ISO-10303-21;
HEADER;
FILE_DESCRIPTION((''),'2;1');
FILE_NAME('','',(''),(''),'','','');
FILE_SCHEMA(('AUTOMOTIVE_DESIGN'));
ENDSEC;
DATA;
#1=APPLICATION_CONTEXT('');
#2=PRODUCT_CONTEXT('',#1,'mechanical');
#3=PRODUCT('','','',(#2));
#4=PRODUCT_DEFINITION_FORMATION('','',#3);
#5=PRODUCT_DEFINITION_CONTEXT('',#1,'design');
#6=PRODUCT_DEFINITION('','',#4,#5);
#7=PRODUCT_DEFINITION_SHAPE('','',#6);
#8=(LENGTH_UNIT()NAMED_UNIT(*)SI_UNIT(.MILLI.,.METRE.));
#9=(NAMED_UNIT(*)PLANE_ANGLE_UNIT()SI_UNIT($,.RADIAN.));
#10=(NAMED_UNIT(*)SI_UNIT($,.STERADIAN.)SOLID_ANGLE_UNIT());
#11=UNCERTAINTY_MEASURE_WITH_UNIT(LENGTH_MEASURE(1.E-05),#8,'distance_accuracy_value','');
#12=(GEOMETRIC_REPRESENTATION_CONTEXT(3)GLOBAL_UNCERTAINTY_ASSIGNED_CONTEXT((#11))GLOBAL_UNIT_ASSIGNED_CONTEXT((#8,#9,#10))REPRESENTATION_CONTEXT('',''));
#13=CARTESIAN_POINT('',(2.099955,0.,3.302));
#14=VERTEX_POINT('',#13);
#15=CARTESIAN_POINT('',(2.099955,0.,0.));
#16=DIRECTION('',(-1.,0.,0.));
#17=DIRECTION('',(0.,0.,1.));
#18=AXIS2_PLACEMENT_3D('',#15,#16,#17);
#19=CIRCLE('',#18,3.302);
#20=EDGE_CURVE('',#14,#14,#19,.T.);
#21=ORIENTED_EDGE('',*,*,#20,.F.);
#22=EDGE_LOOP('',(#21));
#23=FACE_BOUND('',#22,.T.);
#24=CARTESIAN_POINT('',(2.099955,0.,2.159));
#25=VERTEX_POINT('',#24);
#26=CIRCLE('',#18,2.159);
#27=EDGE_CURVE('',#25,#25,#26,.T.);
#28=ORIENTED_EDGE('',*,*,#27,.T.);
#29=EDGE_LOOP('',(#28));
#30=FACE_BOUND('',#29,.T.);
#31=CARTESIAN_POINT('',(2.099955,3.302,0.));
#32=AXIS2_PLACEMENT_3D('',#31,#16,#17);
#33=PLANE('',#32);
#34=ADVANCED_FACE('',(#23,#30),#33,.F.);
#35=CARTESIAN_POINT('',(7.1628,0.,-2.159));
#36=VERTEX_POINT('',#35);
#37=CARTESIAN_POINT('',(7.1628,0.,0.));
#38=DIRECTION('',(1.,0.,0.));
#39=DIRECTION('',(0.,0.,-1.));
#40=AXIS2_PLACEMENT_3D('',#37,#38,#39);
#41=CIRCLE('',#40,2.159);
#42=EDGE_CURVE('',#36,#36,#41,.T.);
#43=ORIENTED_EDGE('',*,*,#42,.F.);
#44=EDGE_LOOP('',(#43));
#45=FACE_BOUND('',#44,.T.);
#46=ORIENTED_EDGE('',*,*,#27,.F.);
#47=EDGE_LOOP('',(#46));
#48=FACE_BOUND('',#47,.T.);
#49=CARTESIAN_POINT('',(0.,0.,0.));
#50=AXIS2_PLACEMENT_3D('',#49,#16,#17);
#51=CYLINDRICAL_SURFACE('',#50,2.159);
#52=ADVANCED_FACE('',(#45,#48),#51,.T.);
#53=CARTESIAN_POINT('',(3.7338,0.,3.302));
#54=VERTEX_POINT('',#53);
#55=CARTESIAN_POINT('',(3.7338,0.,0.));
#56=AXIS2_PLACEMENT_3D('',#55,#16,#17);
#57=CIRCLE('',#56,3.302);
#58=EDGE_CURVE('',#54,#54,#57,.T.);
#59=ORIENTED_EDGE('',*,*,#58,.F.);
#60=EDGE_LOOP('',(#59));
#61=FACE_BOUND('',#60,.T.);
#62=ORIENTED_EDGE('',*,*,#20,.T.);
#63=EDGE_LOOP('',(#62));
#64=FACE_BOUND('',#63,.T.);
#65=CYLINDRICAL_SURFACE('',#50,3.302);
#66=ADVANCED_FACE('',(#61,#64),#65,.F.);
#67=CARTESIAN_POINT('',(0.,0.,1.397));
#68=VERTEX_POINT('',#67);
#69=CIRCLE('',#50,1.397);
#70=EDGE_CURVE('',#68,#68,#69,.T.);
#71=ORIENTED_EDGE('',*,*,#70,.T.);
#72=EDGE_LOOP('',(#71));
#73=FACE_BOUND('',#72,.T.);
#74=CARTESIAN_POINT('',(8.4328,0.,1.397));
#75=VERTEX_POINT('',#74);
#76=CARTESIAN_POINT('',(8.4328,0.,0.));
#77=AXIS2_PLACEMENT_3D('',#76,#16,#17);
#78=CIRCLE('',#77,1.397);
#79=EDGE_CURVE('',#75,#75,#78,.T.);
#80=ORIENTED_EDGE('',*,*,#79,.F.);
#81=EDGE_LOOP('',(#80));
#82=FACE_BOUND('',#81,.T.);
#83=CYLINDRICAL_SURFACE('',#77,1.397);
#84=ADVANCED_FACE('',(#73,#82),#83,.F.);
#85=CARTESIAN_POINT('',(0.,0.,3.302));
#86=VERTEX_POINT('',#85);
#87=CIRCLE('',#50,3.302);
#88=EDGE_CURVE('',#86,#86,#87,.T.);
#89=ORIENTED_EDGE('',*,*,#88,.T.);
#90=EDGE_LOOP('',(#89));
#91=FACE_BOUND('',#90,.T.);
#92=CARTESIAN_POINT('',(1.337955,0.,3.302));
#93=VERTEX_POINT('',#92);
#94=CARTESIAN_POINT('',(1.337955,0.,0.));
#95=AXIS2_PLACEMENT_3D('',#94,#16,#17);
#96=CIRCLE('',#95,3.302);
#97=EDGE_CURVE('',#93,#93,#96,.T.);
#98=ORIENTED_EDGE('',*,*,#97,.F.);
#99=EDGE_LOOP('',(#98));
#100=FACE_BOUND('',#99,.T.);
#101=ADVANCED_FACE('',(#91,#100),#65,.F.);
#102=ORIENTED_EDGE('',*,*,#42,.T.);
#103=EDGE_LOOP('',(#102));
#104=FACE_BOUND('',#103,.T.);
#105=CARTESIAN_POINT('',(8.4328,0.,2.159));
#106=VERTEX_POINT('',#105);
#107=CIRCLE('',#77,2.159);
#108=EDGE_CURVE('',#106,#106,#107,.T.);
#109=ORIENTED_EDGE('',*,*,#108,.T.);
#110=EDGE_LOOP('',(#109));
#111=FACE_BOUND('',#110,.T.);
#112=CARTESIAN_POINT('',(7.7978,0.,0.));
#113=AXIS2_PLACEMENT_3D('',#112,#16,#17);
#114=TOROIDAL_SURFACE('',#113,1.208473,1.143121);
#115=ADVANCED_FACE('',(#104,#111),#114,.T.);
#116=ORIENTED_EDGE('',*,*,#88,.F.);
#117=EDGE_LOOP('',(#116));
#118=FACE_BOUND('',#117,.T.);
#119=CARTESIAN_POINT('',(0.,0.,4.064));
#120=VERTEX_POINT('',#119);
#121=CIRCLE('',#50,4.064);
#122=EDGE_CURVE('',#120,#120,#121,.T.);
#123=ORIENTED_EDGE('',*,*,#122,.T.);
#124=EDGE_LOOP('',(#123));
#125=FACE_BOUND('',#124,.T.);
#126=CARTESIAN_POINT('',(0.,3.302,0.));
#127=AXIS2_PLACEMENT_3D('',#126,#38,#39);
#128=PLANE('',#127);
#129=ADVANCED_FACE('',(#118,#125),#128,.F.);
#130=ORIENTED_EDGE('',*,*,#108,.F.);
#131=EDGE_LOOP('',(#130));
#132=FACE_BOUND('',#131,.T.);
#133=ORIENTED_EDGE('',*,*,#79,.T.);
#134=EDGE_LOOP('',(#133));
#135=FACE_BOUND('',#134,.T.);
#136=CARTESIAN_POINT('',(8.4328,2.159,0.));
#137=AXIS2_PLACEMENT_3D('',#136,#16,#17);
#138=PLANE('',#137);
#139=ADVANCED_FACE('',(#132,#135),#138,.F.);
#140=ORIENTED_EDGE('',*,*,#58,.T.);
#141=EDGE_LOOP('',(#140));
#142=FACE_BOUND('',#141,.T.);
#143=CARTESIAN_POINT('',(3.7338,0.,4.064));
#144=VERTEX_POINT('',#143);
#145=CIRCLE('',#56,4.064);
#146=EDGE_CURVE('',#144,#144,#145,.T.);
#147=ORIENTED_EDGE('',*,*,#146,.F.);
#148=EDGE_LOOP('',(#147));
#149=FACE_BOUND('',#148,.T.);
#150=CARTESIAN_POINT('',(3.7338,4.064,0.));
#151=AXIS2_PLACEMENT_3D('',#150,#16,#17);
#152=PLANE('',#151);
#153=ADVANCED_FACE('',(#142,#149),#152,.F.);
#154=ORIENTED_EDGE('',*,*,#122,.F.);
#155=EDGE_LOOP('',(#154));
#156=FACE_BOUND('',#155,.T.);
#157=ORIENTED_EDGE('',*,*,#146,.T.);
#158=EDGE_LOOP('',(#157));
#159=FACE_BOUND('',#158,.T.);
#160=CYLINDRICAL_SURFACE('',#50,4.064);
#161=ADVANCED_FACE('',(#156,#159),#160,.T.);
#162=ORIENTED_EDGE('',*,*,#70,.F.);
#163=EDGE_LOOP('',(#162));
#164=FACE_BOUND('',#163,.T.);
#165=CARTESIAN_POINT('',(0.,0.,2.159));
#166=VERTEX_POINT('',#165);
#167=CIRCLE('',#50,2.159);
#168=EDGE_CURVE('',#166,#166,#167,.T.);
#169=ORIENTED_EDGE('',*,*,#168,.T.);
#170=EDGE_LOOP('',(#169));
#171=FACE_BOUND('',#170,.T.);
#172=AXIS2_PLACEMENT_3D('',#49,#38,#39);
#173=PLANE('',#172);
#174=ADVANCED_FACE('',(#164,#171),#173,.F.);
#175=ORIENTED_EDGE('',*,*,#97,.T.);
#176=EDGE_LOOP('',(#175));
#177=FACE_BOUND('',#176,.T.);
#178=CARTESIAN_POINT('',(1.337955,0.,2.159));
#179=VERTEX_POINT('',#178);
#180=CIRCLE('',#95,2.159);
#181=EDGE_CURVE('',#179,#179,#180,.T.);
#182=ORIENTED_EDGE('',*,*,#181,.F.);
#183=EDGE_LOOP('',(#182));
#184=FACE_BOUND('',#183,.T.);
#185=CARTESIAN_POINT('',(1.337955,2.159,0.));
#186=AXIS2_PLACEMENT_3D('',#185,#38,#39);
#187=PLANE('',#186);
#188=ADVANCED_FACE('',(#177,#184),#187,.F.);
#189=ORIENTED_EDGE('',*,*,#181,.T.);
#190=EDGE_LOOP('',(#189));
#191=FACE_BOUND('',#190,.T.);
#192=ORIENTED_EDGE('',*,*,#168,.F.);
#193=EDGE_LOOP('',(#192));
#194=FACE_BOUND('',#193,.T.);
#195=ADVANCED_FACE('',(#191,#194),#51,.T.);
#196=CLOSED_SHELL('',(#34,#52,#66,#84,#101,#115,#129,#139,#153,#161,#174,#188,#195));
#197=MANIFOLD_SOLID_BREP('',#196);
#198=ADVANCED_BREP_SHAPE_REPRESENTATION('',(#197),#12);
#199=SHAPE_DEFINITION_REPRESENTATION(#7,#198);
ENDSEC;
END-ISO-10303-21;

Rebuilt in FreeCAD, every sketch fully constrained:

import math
import FreeCAD as App
import Part
import Sketcher
Q = App.Units.Quantity

doc = App.newDocument("Part")
body = doc.addObject("PartDesign::Body", "Body")

sketch1 = body.newObject("Sketcher::SketchObject", "Sketch")
sketch1.AttachmentSupport = (doc.getObject("XY_Plane"), [""])
sketch1.MapMode = "FlatFace"
sketch1.addGeometry(Part.LineSegment(App.Vector(0, 2.2, 0), App.Vector(0, 0, 0)), False)
sketch1.addGeometry(Part.LineSegment(App.Vector(0, 0, 0), App.Vector(8.4, 0, 0)), False)
sketch1.addGeometry(Part.LineSegment(App.Vector(8.4, 0, 0), App.Vector(8.4, 2.2, 0)), False)
sketch1.addGeometry(Part.LineSegment(App.Vector(8.4, 2.2, 0), App.Vector(2.1, 2.2, 0)), False)
sketch1.addGeometry(Part.LineSegment(App.Vector(2.1, 2.2, 0), App.Vector(2.1, 3.3, 0)), False)
sketch1.addGeometry(Part.LineSegment(App.Vector(2.1, 3.3, 0), App.Vector(3.7, 3.3, 0)), False)
sketch1.addGeometry(Part.LineSegment(App.Vector(3.7, 3.3, 0), App.Vector(3.7, 4.1, 0)), False)
sketch1.addGeometry(Part.LineSegment(App.Vector(3.7, 4.1, 0), App.Vector(0, 4.1, 0)), False)
sketch1.addGeometry(Part.LineSegment(App.Vector(0, 4.1, 0), App.Vector(0, 3.3, 0)), False)
sketch1.addGeometry(Part.LineSegment(App.Vector(0, 3.3, 0), App.Vector(1.3, 3.3, 0)), False)
sketch1.addGeometry(Part.LineSegment(App.Vector(1.3, 3.3, 0), App.Vector(1.3, 2.2, 0)), False)
sketch1.addGeometry(Part.LineSegment(App.Vector(1.3, 2.2, 0), App.Vector(0, 2.2, 0)), False)
sketch1.addConstraint(Sketcher.Constraint("Coincident", 0, 2, 1, 1))
sketch1.addConstraint(Sketcher.Constraint("Coincident", 1, 2, 2, 1))
sketch1.addConstraint(Sketcher.Constraint("Coincident", 2, 2, 3, 1))
sketch1.addConstraint(Sketcher.Constraint("Coincident", 3, 2, 4, 1))
sketch1.addConstraint(Sketcher.Constraint("Coincident", 4, 2, 5, 1))
sketch1.addConstraint(Sketcher.Constraint("Coincident", 5, 2, 6, 1))
sketch1.addConstraint(Sketcher.Constraint("Coincident", 6, 2, 7, 1))
sketch1.addConstraint(Sketcher.Constraint("Coincident", 7, 2, 8, 1))
sketch1.addConstraint(Sketcher.Constraint("Coincident", 8, 2, 9, 1))
sketch1.addConstraint(Sketcher.Constraint("Coincident", 9, 2, 10, 1))
sketch1.addConstraint(Sketcher.Constraint("Coincident", 10, 2, 11, 1))
sketch1.addConstraint(Sketcher.Constraint("Coincident", 11, 2, 0, 1))
sketch1.addConstraint(Sketcher.Constraint("Vertical", 0))
sketch1.addConstraint(Sketcher.Constraint("Horizontal", 1))
sketch1.addConstraint(Sketcher.Constraint("Vertical", 2))
sketch1.addConstraint(Sketcher.Constraint("Horizontal", 3))
sketch1.addConstraint(Sketcher.Constraint("Vertical", 4))
sketch1.addConstraint(Sketcher.Constraint("Horizontal", 5))
sketch1.addConstraint(Sketcher.Constraint("Vertical", 6))
sketch1.addConstraint(Sketcher.Constraint("Horizontal", 7))
sketch1.addConstraint(Sketcher.Constraint("Vertical", 8))
sketch1.addConstraint(Sketcher.Constraint("Horizontal", 9))
sketch1.addConstraint(Sketcher.Constraint("Vertical", 10))
sketch1.addConstraint(Sketcher.Constraint("Horizontal", 11))
sketch1.addConstraint(Sketcher.Constraint("Coincident", 0, 2, -1, 1))
sketch1.addConstraint(Sketcher.Constraint("PointOnObject", 7, 2, -2))
sketch1.addConstraint(Sketcher.Constraint("Horizontal", 5, 2, 8, 2))
sketch1.addConstraint(Sketcher.Constraint("Horizontal", 3, 2, 10, 2))
sketch1.addConstraint(Sketcher.Constraint("DistanceY", 6, 1, 6, 2, Q("0.03 in")))
sketch1.addConstraint(Sketcher.Constraint("DistanceX", 1, 1, 1, 2, Q("0.332 in")))
sketch1.addConstraint(Sketcher.Constraint("DistanceX", 7, 2, 7, 1, Q("0.147 in")))
sketch1.addConstraint(Sketcher.Constraint("DistanceY", 0, 2, 0, 1, Q("0.085 in")))
sketch1.addConstraint(Sketcher.Constraint("DistanceY", 4, 1, 4, 2, Q("0.045 in")))
sketch1.addConstraint(Sketcher.Constraint("DistanceX", 9, 2, 4, 2, Q("0.03 in")))
sketch1.addConstraint(Sketcher.Constraint("DistanceX", 3, 2, 3, 1, Q("6.332845 mm")))
revolution = body.newObject("PartDesign::Revolution", "Revolution")
revolution.Profile = sketch1
revolution.ReferenceAxis = (sketch1, ["H_Axis"])
revolution.Angle = 360

sketch2 = body.newObject("Sketcher::SketchObject", "Sketch001")
sketch2.AttachmentSupport = (doc.getObject("YZ_Plane"), [""])
sketch2.MapMode = "FlatFace"
sketch2.addGeometry(Part.Circle(App.Vector(0, 0, 0), App.Vector(0, 0, 1), 1.4), False)
sketch2.addConstraint(Sketcher.Constraint("Coincident", 0, 3, -1, 1))
sketch2.addConstraint(Sketcher.Constraint("Diameter", 0, Q("0.11 in")))
pocket1 = body.newObject("PartDesign::Pocket", "Pocket")
pocket1.Profile = sketch2
pocket1.Type = "ThroughAll"
pocket1.Reversed = True

sketch3 = body.newObject("Sketcher::SketchObject", "Sketch002")
sketch3.AttachmentSupport = (doc.getObject("XY_Plane"), [""])
sketch3.MapMode = "FlatFace"
sketch3.addGeometry(Part.LineSegment(App.Vector(7.2, 2.2, 0), App.Vector(8.4, 2.2, 0)), False)
sketch3.addGeometry(Part.ArcOfCircle(Part.Circle(App.Vector(7.8, 1.2, 0), App.Vector(0, 0, 1), 1.1), math.radians(56), math.radians(124)), False)
sketch3.addConstraint(Sketcher.Constraint("Coincident", 0, 1, 1, 2))
sketch3.addConstraint(Sketcher.Constraint("Coincident", 1, 1, 0, 2))
sketch3.addConstraint(Sketcher.Constraint("Horizontal", 0))
sketch3.addConstraint(Sketcher.Constraint("DistanceX", 0, 1, 0, 2, Q("0.05 in")))
sketch3.addConstraint(Sketcher.Constraint("DistanceX", -1, 1, 1, 3, Q("0.307 in")))
sketch3.addConstraint(Sketcher.Constraint("DistanceY", -1, 1, 0, 1, Q("0.085 in")))
sketch3.addConstraint(Sketcher.Constraint("Radius", 1, Q("1.143121 mm")))
revolution2 = body.newObject("PartDesign::Revolution", "Revolution001")
revolution2.Profile = sketch3
revolution2.ReferenceAxis = (sketch3, ["H_Axis"])
revolution2.Angle = 360

doc.recompute()
